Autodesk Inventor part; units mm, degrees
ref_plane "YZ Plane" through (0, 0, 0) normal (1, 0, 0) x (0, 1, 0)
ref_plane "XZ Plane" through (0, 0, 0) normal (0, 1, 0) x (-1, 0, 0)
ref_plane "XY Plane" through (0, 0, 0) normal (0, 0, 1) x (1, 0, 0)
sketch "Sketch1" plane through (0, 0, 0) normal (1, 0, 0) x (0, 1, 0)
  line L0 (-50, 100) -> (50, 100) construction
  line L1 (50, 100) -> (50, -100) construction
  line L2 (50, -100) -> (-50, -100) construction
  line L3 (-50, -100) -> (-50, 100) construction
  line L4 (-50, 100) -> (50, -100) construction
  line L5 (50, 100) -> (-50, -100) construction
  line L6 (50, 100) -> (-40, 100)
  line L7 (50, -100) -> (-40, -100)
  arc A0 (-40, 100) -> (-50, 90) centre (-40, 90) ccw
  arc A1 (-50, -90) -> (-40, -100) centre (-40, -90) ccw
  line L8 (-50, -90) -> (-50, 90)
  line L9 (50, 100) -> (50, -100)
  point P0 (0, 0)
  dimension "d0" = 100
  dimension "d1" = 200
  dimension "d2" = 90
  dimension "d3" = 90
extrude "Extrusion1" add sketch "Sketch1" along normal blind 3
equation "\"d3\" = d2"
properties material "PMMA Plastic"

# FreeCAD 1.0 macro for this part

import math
import FreeCAD as App
import Part
import Sketcher

doc = App.newDocument("Part")
body = doc.addObject("PartDesign::Body", "Body")

# Sketch on YZ plane
sketch1 = body.newObject("Sketcher::SketchObject", "Sketch")
sketch1.AttachmentSupport = (doc.getObject("YZ_Plane"), [""])
sketch1.MapMode = "FlatFace"
sketch1.addGeometry(Part.LineSegment(App.Vector(50, -100, 0), App.Vector(50, 100, 0)), False)
sketch1.addGeometry(Part.LineSegment(App.Vector(50, 100, 0), App.Vector(-40, 100, 0)), False)
sketch1.addGeometry(Part.ArcOfCircle(Part.Circle(App.Vector(-40, 90, 0), App.Vector(0, 0, 1), 10), math.radians(90), math.radians(180)), False)
sketch1.addGeometry(Part.LineSegment(App.Vector(-50, 90, 0), App.Vector(-50, -90, 0)), False)
sketch1.addGeometry(Part.ArcOfCircle(Part.Circle(App.Vector(-40, -90, 0), App.Vector(0, 0, 1), 10), math.radians(180), math.radians(270)), False)
sketch1.addGeometry(Part.LineSegment(App.Vector(-40, -100, 0), App.Vector(50, -100, 0)), False)
sketch1.addConstraint(Sketcher.Constraint("Coincident", 0, 2, 1, 1))
sketch1.addConstraint(Sketcher.Constraint("Tangent", 1, 2, 2, 1))
sketch1.addConstraint(Sketcher.Constraint("Tangent", 2, 2, 3, 1))
sketch1.addConstraint(Sketcher.Constraint("Tangent", 3, 2, 4, 1))
sketch1.addConstraint(Sketcher.Constraint("Tangent", 4, 2, 5, 1))
sketch1.addConstraint(Sketcher.Constraint("Coincident", 5, 2, 0, 1))
sketch1.addConstraint(Sketcher.Constraint("Vertical", 0))
sketch1.addConstraint(Sketcher.Constraint("Horizontal", 1))
sketch1.addConstraint(Sketcher.Constraint("Vertical", 3))
sketch1.addConstraint(Sketcher.Constraint("Horizontal", 5))
sketch1.addConstraint(Sketcher.Constraint("Equal", 2, 4))
sketch1.addConstraint(Sketcher.Constraint("DistanceX", 1, 2, 1, 1, 90.0))
sketch1.addConstraint(Sketcher.Constraint("DistanceY", 0, 1, 0, 2, 200.0))
sketch1.addConstraint(Sketcher.Constraint("DistanceY", -1, 1, 2, 3, 90.0))
sketch1.addConstraint(Sketcher.Constraint("DistanceY", 4, 3, -1, 1, 90.0))
sketch1.addConstraint(Sketcher.Constraint("DistanceX", 2, 3, -1, 1, 40.0))
pad1 = body.newObject("PartDesign::Pad", "Pad")
pad1.Profile = sketch1
pad1.Length = 3

doc.recompute()
